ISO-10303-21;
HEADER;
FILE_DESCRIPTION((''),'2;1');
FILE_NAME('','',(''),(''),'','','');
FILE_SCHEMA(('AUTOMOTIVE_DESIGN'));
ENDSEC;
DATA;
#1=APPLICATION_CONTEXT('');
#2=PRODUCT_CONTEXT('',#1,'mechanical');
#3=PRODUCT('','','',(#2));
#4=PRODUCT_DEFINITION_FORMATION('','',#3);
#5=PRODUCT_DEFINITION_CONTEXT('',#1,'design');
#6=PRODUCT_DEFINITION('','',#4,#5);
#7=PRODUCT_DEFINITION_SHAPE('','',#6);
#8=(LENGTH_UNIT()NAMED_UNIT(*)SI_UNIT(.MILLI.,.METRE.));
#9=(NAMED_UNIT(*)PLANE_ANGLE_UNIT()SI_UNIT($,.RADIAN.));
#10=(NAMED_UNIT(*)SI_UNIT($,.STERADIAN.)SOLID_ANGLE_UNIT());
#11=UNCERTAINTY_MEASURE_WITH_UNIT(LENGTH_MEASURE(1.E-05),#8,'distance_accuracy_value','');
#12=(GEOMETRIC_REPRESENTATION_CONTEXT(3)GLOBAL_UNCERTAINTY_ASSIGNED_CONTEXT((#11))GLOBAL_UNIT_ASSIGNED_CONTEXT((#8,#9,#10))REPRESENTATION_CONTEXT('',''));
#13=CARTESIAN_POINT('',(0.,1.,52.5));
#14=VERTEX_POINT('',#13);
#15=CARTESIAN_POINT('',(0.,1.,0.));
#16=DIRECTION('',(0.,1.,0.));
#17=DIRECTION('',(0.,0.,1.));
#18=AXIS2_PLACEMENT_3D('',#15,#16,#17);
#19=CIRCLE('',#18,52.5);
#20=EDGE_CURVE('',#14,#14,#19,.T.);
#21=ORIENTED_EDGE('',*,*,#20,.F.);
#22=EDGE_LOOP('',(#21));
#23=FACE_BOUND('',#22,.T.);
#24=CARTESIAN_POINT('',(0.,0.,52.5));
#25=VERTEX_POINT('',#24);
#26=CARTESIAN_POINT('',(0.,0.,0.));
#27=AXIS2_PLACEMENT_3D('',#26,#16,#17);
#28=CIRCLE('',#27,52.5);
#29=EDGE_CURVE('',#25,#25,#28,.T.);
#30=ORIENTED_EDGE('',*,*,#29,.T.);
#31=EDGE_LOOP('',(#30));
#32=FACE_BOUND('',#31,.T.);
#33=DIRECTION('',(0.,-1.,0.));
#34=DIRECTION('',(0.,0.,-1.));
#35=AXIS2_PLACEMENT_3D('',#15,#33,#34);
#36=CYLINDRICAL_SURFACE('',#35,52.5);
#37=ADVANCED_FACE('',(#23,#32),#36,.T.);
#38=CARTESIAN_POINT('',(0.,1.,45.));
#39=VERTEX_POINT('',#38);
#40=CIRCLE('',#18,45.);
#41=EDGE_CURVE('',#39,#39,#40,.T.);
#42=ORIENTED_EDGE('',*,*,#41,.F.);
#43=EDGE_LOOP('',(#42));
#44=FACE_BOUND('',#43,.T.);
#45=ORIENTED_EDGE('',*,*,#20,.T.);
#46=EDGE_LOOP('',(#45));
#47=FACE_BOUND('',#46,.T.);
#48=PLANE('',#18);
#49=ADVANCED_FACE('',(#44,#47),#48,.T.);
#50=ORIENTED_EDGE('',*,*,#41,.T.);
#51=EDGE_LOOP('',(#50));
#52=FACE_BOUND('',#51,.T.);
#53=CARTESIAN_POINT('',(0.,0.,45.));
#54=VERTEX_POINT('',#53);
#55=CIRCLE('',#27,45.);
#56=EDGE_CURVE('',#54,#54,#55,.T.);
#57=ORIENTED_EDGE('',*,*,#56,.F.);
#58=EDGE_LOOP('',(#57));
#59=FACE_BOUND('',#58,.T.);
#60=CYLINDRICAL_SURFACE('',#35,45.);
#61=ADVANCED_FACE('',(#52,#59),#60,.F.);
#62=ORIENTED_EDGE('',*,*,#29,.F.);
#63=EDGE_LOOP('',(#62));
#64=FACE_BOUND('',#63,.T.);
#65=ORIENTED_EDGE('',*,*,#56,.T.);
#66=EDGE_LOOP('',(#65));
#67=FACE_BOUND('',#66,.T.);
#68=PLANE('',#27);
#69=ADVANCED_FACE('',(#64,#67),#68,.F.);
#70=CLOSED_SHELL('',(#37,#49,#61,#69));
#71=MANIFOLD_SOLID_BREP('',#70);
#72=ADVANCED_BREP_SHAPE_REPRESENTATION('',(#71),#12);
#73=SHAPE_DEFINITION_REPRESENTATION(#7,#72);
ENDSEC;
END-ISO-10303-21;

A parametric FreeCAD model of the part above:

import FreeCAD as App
import Part
import Sketcher

V = App.Vector

doc = App.newDocument("Part")
body = doc.addObject("PartDesign::Body", "Body")

# Sketch on XZ plane
sketch1 = body.newObject("Sketcher::SketchObject", "Sketch")
sketch1.AttachmentSupport = (doc.getObject("XZ_Plane"), [""])
sketch1.MapMode = "FlatFace"
sketch1.addGeometry(Part.Circle(V(0, 0, 0), V(0, 0, 1), 52.5), False)
sketch1.addGeometry(Part.Circle(V(0, 0, 0), V(0, 0, 1), 45), False)
sketch1.addConstraint(Sketcher.Constraint("Coincident", 0, 3, -1, 1))
sketch1.addConstraint(Sketcher.Constraint("Coincident", 1, 3, -1, 1))
sketch1.addConstraint(Sketcher.Constraint("Diameter", 0, 105.0))
sketch1.addConstraint(Sketcher.Constraint("Diameter", 1, 90.0))
pad1 = body.newObject("PartDesign::Pad", "Pad")
pad1.Profile = sketch1
pad1.Length = 1
pad1.Reversed = True

doc.recompute()
